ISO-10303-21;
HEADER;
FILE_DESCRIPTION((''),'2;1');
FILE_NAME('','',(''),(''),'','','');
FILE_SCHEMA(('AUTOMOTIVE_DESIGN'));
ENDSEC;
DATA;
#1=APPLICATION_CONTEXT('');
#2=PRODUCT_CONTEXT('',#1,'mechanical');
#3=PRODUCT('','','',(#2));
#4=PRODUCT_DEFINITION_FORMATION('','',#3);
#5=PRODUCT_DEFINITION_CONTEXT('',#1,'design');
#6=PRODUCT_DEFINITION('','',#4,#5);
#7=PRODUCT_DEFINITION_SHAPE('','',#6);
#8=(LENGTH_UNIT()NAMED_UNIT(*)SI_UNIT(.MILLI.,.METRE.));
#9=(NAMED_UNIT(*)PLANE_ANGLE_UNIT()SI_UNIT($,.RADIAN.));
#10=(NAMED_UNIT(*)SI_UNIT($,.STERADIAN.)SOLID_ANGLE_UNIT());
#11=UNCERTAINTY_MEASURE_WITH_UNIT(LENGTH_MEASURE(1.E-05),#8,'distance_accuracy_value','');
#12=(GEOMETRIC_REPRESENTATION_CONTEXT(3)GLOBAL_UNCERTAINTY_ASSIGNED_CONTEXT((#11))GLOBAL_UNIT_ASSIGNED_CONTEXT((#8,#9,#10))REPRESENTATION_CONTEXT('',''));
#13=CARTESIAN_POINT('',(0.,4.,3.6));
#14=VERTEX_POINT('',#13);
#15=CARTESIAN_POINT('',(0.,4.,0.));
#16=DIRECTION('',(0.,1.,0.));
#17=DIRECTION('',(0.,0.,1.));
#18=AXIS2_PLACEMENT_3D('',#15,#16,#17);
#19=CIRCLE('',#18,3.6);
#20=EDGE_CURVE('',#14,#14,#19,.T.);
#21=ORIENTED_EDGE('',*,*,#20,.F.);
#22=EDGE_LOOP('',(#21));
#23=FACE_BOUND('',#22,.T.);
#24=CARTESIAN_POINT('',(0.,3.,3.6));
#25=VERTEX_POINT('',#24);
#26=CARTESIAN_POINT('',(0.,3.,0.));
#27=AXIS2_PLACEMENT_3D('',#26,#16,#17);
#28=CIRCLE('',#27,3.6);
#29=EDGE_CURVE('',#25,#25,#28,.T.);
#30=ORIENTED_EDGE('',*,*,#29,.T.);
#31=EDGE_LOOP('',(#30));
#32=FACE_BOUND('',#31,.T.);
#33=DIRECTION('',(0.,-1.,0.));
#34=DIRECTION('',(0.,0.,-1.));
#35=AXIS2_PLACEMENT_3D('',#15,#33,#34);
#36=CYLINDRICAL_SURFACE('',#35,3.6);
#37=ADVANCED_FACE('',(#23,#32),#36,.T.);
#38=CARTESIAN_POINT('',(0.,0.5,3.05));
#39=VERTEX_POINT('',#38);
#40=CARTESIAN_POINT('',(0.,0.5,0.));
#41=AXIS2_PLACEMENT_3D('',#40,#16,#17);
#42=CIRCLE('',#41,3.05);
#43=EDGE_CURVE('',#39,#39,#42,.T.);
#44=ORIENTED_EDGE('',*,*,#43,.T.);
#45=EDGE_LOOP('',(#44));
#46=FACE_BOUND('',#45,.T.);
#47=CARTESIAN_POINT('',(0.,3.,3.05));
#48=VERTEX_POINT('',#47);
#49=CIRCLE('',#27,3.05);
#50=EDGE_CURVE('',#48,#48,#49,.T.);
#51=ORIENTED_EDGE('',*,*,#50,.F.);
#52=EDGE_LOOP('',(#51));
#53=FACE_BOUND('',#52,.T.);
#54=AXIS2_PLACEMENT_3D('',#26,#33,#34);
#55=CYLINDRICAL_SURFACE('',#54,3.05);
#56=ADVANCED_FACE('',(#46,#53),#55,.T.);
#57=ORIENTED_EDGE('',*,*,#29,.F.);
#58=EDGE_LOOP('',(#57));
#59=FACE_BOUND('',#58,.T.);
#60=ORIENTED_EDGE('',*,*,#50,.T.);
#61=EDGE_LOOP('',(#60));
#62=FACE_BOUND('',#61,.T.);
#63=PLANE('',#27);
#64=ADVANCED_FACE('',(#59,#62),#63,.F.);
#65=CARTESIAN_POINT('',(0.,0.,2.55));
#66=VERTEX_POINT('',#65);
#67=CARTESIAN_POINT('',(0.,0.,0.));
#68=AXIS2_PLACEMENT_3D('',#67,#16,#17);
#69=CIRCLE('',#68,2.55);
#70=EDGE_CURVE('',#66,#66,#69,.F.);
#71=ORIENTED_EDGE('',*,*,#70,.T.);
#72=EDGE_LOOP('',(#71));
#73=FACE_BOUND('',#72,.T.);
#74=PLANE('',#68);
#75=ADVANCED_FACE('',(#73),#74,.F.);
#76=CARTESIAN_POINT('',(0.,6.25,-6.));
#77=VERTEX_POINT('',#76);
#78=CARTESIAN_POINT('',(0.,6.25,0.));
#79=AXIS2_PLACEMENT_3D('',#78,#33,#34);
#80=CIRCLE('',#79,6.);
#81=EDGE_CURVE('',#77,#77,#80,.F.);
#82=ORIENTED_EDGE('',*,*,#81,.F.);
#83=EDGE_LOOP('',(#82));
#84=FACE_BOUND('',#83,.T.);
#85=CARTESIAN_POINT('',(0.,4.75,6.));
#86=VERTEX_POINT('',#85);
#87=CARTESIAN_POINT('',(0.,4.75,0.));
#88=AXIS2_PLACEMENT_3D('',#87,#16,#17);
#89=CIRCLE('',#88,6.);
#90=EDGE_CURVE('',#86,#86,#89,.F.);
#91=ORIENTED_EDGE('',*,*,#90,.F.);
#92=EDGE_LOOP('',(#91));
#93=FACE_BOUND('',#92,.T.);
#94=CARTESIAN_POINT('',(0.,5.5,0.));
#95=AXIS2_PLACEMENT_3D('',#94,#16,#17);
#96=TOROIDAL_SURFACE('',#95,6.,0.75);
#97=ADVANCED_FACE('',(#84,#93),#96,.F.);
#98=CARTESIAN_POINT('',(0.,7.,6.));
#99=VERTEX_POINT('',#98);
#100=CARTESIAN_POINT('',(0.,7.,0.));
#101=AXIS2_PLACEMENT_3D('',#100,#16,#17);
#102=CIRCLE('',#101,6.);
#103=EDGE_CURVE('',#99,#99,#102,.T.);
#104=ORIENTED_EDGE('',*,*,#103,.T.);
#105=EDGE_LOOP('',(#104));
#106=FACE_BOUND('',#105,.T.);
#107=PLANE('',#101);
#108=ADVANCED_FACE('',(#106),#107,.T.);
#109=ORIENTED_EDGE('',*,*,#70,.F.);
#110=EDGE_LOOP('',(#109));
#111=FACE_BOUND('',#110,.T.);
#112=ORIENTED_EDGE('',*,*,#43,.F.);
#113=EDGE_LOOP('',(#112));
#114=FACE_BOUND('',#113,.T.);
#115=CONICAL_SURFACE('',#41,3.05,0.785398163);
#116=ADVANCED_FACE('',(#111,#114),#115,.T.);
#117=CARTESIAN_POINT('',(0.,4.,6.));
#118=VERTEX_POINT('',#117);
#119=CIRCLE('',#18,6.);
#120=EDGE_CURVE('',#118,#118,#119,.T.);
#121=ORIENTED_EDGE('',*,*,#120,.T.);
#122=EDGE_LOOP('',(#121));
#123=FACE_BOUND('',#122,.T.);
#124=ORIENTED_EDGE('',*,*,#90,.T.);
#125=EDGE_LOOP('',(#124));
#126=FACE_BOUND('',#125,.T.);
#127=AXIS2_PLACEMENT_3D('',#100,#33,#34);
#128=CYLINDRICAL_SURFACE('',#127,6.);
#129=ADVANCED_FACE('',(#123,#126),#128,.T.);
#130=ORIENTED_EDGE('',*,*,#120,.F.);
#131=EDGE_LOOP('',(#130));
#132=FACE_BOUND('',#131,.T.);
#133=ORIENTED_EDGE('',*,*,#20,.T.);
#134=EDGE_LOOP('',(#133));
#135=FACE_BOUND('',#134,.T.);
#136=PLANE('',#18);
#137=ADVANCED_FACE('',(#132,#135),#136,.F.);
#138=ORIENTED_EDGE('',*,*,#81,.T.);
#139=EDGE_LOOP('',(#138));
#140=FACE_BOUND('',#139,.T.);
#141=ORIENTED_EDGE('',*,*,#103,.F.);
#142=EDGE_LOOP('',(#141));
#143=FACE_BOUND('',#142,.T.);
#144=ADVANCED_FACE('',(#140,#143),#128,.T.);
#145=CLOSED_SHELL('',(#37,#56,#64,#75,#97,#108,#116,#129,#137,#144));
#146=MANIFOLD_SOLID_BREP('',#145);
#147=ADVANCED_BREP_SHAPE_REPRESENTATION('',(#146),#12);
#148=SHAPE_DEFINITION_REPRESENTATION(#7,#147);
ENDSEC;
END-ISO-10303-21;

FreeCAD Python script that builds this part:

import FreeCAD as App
import Part
import Sketcher
from FreeCAD import Vector


def edges_at(feature, points):
    """Names of the edges that pass closest to the given points."""
    edges = feature.Shape.Edges
    near = lambda p: min(range(len(edges)), key=lambda i: edges[i].distToShape(Part.Vertex(*p))[0])
    return sorted({f"Edge{near(p) + 1}" for p in points})

doc = App.newDocument("Part")
params = doc.addObject("Spreadsheet::Sheet", "Params")
for row, (alias, value) in enumerate([
    ("sketch1_diameter", "6.1 mm"),
    ("pad1_length", "3 mm"),
    ("sketch2_diameter", "7.2 mm"),
    ("pad2_length", "1 mm"),
    ("sketch3_diameter", "12 mm"),
    ("pad3_length", "3 mm"),
    ("sketch4_diameter", "1.5 mm"),
    ("groove_angle", "360 deg"),
    ("chamfer_size", "0.5 mm"),
], start=1):
    params.set(f"A{row}", alias)
    params.set(f"B{row}", "=" + value)
    params.setAlias(f"B{row}", alias)

body = doc.addObject("PartDesign::Body", "Body")

# Sketch on XZ plane
sketch1 = doc.addObject("Sketcher::SketchObject", "Sketch")
body.addObject(sketch1)
sketch1.AttachmentSupport = (doc.XZ_Plane, [""])
sketch1.MapMode = "FlatFace"
sketch1.addGeometry(Part.Circle(Vector(0, 0, 0), Vector(0, 0, 1), 3), False)
sketch1.addConstraint([
    Sketcher.Constraint("Coincident", 0, 3, -1, 1),
    Sketcher.Constraint("Diameter", 0, 6.1),
])
sketch1.setExpression("Constraints[1]", "Params.sketch1_diameter")
pad1 = doc.addObject("PartDesign::Pad", "Pad")
body.addObject(pad1)
pad1.Profile = sketch1
pad1.setExpression("Length", "Params.pad1_length")
pad1.Reversed = True

# Sketch on XZ plane
sketch2 = doc.addObject("Sketcher::SketchObject", "Sketch001")
body.addObject(sketch2)
sketch2.AttachmentSupport = (doc.XZ_Plane, [""])
sketch2.MapMode = "FlatFace"
sketch2.AttachmentOffset = App.Placement(Vector(0, 0, -3), App.Rotation())
sketch2.addGeometry(Part.Circle(Vector(0, 0, 0), Vector(0, 0, 1), 3.6), False)
sketch2.addConstraint([
    Sketcher.Constraint("Coincident", 0, 3, -1, 1),
    Sketcher.Constraint("Diameter", 0, 7.2),
])
sketch2.setExpression("Constraints[1]", "Params.sketch2_diameter")
pad2 = doc.addObject("PartDesign::Pad", "Pad001")
body.addObject(pad2)
pad2.Profile = sketch2
pad2.setExpression("Length", "Params.pad2_length")
pad2.Reversed = True

# Sketch on XZ plane
sketch3 = doc.addObject("Sketcher::SketchObject", "Sketch002")
body.addObject(sketch3)
sketch3.AttachmentSupport = (doc.XZ_Plane, [""])
sketch3.MapMode = "FlatFace"
sketch3.AttachmentOffset = App.Placement(Vector(0, 0, -4), App.Rotation())
sketch3.addGeometry(Part.Circle(Vector(0, 0, 0), Vector(0, 0, 1), 6), False)
sketch3.addConstraint([
    Sketcher.Constraint("Coincident", 0, 3, -1, 1),
    Sketcher.Constraint("Diameter", 0, 12.0),
])
sketch3.setExpression("Constraints[1]", "Params.sketch3_diameter")
pad3 = doc.addObject("PartDesign::Pad", "Pad002")
body.addObject(pad3)
pad3.Profile = sketch3
pad3.setExpression("Length", "Params.pad3_length")
pad3.Reversed = True

# Sketch on XY plane
sketch4 = doc.addObject("Sketcher::SketchObject", "Sketch003")
body.addObject(sketch4)
sketch4.AttachmentSupport = (doc.XY_Plane, [""])
sketch4.MapMode = "FlatFace"
sketch4.addGeometry(Part.Circle(Vector(-6, 5.5, 0), Vector(0, 0, 1), 0.8), False)
sketch4.addConstraint([
    Sketcher.Constraint("Diameter", 0, 1.5),
    Sketcher.Constraint("DistanceX", 0, 3, -1, 1, 6.0),
    Sketcher.Constraint("DistanceY", -1, 1, 0, 3, 5.5),
])
sketch4.setExpression("Constraints[0]", "Params.sketch4_diameter")
groove = doc.addObject("PartDesign::Groove", "Groove")
body.addObject(groove)
groove.Profile = sketch4
groove.ReferenceAxis = (sketch4, ["V_Axis"])
groove.setExpression("Angle", "Params.groove_angle")
doc.recompute()

chamfer = doc.addObject("PartDesign::Chamfer", "Chamfer")
body.addObject(chamfer)
chamfer.Base = (groove, edges_at(groove, [(0, 0, -3.05)]))
chamfer.setExpression("Size", "Params.chamfer_size")

doc.recompute()
